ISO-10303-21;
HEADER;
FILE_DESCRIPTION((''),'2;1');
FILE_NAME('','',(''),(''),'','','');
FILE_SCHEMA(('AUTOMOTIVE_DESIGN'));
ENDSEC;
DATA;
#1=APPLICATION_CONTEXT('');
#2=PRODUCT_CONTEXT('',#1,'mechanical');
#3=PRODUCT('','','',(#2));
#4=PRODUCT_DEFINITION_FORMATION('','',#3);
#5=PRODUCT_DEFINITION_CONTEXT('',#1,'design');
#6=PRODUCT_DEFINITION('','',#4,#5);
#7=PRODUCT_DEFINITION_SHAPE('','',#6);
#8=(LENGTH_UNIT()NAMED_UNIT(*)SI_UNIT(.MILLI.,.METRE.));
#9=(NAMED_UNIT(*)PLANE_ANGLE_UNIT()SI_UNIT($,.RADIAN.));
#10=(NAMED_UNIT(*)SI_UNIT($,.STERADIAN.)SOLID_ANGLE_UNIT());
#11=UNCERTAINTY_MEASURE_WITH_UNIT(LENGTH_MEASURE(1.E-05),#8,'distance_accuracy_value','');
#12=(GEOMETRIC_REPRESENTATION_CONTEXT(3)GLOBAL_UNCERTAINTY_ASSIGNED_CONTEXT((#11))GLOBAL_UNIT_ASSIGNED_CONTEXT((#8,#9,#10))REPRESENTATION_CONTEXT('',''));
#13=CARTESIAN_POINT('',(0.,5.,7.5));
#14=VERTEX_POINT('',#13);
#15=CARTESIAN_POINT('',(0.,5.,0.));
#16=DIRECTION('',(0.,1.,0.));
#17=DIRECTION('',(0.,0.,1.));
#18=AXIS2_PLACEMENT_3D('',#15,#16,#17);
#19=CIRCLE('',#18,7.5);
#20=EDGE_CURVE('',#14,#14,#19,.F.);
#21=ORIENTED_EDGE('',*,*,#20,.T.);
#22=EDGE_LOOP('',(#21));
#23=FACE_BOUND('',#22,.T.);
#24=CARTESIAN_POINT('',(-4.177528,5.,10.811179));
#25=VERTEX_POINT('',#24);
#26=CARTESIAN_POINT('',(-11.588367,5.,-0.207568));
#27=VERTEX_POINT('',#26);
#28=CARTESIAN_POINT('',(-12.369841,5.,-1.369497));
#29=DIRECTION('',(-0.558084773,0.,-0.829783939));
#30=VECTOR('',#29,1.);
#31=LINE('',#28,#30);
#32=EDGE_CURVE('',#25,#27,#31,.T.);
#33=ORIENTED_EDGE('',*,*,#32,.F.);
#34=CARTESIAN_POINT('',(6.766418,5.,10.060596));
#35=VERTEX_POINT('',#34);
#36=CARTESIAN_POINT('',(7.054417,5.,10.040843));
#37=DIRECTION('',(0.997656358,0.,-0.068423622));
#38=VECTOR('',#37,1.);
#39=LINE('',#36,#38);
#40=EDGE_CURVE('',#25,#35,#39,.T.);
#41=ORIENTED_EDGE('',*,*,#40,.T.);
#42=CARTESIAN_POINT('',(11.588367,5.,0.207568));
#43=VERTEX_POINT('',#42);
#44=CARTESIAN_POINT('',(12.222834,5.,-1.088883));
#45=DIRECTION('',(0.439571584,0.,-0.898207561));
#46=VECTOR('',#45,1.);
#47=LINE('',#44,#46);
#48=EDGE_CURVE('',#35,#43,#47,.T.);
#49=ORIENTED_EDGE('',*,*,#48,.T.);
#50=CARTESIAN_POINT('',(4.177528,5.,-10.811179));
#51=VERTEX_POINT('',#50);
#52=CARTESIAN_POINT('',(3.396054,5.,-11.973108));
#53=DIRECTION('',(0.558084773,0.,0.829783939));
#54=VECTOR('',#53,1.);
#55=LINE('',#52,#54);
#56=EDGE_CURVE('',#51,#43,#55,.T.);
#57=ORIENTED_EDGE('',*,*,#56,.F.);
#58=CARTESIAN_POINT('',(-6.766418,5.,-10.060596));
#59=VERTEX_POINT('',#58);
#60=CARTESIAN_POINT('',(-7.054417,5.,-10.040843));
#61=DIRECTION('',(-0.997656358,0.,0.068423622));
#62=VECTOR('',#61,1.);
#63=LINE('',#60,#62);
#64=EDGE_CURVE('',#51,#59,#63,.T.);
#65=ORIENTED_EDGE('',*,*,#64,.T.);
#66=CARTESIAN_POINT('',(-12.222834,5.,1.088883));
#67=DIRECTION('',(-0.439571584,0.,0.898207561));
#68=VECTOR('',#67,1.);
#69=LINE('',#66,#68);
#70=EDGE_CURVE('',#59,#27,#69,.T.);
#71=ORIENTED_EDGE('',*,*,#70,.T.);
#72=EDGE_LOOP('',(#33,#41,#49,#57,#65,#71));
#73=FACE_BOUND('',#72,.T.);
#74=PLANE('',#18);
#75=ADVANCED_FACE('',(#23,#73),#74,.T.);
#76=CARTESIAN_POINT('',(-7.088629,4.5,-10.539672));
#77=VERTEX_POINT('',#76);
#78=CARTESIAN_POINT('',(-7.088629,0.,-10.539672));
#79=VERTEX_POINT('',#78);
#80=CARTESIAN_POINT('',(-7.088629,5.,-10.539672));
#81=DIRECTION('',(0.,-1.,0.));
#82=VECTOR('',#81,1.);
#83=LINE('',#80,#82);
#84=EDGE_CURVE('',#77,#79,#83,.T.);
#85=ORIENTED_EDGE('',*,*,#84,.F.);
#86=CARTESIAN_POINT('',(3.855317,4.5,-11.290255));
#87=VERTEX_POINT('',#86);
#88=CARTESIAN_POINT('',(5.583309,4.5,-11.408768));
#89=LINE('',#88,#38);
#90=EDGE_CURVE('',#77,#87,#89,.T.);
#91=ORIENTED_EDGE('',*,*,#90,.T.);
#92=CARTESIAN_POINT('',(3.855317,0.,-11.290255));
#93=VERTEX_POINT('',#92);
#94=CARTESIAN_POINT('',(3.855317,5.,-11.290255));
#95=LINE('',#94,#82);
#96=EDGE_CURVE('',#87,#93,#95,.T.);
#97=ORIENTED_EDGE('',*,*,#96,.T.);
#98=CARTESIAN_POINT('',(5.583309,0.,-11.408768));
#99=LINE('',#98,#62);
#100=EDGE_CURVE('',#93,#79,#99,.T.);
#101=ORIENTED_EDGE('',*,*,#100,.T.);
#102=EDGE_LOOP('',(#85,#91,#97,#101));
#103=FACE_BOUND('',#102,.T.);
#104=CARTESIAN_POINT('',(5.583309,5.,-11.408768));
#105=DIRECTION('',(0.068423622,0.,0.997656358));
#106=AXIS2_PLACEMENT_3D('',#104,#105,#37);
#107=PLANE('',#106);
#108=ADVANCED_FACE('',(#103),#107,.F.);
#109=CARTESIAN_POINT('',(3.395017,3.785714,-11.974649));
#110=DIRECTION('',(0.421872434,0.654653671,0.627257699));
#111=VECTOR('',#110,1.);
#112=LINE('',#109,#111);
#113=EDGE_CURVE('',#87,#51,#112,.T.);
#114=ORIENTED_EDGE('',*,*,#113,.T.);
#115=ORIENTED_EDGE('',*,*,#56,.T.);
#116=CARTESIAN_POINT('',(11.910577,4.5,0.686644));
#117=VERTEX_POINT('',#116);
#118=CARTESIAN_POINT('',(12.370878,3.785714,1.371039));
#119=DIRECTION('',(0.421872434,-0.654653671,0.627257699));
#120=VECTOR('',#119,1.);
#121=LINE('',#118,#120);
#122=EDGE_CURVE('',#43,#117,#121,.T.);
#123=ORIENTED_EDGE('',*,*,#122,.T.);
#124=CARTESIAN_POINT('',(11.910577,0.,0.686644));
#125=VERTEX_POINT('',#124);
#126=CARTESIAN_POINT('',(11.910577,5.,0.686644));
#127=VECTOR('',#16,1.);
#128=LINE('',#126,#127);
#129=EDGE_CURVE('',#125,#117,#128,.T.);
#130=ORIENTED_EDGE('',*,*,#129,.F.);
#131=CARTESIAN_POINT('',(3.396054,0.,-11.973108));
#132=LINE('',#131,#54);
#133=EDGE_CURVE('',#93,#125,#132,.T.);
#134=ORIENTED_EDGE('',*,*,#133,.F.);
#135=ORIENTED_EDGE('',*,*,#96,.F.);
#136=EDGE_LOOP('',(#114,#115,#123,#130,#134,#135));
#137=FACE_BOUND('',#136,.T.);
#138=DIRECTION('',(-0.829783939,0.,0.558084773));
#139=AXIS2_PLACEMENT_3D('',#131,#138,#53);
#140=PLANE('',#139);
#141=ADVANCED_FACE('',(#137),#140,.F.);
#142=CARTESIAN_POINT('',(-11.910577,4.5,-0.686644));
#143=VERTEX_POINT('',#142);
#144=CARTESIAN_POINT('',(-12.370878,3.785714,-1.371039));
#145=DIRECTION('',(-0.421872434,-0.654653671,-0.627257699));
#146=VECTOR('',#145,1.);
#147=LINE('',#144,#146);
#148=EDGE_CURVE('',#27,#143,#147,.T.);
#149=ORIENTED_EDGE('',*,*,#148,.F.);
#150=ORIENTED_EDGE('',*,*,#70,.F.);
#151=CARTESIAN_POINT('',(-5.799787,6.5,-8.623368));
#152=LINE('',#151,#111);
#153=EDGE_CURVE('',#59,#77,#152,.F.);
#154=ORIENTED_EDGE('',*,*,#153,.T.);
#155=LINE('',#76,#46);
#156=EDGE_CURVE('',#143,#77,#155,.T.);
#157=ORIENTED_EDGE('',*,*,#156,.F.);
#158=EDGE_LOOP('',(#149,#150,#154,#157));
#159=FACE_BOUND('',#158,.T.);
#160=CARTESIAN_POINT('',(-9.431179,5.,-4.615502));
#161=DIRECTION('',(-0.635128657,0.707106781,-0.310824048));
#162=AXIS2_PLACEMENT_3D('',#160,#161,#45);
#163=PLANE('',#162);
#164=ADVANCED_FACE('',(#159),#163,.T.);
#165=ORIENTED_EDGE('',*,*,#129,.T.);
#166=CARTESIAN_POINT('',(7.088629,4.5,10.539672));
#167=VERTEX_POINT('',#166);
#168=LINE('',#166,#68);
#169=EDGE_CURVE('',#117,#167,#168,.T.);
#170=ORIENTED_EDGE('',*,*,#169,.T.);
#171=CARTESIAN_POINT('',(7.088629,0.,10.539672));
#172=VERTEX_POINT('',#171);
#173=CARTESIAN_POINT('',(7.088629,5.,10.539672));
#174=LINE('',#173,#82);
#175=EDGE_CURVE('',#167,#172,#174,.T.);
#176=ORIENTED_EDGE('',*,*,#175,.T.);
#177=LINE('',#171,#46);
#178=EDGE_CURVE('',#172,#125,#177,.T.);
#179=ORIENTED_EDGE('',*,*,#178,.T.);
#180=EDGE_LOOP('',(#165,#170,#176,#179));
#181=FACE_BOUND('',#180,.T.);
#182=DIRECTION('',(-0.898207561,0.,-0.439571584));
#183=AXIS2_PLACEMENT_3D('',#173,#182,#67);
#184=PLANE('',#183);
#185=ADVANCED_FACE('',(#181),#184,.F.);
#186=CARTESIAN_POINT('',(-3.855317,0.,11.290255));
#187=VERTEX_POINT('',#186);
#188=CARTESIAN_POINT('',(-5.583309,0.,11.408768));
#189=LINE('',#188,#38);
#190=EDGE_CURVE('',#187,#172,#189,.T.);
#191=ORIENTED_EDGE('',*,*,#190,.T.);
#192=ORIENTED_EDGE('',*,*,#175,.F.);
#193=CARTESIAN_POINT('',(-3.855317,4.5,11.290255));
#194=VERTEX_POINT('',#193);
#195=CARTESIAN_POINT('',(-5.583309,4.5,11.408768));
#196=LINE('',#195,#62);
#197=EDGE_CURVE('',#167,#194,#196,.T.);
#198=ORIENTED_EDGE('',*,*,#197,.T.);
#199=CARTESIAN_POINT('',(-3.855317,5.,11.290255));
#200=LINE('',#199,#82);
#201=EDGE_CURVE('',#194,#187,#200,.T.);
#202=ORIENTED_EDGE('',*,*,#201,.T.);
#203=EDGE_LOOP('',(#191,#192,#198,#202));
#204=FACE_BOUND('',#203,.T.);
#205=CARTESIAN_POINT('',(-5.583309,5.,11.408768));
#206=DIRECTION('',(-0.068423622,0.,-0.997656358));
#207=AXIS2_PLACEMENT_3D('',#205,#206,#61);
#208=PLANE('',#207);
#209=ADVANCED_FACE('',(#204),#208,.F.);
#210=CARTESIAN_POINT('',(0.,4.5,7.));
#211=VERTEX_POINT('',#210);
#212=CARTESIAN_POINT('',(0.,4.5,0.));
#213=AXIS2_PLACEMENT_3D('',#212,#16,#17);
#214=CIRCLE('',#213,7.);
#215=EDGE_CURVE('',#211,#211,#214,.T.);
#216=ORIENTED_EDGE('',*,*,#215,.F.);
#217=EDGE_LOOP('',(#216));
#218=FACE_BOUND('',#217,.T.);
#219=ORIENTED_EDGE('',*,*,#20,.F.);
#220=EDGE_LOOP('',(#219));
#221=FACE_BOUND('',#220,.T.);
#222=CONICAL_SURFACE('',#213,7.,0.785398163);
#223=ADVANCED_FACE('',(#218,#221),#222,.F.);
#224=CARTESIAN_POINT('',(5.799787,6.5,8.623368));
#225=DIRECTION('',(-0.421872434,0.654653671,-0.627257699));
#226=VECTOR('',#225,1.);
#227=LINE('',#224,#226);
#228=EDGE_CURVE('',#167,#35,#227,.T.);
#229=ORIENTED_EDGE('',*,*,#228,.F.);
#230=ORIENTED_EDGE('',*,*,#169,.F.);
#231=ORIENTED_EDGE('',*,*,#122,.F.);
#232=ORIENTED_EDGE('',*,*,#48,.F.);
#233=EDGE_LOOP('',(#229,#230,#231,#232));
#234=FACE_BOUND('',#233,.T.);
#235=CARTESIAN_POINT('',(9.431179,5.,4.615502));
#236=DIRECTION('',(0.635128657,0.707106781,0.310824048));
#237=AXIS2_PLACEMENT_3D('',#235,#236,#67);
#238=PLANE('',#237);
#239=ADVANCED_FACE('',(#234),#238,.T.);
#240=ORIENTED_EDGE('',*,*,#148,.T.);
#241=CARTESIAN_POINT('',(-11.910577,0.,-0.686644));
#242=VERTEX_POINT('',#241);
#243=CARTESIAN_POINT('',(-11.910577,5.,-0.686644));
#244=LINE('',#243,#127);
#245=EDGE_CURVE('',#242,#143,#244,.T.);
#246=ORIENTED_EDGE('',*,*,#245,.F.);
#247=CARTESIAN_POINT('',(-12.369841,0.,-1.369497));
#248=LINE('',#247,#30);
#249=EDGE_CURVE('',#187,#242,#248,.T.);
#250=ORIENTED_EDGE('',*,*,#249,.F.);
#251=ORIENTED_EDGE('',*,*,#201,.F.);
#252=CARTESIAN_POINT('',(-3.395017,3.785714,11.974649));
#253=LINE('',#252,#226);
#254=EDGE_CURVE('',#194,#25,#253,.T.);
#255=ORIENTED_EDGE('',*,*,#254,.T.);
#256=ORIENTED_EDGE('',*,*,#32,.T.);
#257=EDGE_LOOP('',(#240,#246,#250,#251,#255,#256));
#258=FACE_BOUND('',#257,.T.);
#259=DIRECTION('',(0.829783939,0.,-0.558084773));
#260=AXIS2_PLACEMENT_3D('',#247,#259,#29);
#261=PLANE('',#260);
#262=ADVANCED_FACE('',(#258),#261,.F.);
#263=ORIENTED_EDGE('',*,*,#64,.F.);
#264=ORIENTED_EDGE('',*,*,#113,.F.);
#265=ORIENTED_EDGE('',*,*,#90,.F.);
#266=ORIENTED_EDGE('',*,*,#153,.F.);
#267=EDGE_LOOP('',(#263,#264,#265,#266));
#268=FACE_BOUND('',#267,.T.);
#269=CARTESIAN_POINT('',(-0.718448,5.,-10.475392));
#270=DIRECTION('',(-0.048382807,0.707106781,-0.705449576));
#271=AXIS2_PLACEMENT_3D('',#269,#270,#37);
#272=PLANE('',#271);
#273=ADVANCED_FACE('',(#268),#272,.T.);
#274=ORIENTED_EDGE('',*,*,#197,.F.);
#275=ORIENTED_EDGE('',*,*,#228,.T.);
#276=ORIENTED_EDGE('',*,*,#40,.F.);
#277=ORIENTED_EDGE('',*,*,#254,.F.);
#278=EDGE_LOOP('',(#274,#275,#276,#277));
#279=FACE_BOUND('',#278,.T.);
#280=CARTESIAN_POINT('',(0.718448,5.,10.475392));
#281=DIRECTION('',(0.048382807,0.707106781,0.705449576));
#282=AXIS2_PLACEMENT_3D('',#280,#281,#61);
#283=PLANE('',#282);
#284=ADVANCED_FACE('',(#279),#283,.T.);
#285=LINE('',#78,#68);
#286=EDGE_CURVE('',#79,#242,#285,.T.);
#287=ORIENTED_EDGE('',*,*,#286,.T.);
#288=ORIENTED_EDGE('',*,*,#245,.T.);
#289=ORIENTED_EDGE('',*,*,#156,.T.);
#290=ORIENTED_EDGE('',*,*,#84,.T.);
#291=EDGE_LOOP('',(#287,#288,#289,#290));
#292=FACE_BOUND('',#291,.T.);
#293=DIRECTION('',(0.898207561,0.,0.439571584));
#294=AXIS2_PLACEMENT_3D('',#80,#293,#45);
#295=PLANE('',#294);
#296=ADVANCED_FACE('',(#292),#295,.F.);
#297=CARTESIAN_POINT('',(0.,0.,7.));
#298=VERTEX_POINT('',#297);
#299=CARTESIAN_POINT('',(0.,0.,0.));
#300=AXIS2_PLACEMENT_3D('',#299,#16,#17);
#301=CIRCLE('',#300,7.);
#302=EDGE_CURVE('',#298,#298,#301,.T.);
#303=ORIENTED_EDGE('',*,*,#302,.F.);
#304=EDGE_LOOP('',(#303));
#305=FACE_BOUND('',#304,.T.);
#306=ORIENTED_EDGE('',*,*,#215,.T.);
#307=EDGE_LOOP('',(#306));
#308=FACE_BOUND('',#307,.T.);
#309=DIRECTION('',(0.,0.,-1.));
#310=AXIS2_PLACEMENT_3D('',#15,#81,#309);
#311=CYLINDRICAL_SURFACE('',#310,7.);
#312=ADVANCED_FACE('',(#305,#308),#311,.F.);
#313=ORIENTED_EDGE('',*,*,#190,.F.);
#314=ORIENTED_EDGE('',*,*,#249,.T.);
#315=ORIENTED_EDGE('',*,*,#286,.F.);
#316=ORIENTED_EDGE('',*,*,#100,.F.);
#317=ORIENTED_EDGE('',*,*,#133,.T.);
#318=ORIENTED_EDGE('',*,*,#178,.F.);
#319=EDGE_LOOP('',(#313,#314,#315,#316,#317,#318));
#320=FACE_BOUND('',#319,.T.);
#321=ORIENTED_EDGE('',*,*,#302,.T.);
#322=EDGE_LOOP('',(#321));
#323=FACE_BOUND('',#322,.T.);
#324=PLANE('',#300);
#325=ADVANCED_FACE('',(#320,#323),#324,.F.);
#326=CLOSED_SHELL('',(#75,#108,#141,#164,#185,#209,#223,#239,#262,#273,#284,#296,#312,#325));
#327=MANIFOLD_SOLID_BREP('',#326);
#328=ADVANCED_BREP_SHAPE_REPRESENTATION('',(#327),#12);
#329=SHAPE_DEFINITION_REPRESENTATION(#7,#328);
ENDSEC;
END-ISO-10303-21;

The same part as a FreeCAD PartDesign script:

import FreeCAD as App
import Part
import Sketcher
from FreeCAD import Vector
Q = App.Units.Quantity


def edges_at(feature, points):
    """Names of the edges that pass closest to the given points."""
    edges = feature.Shape.Edges
    near = lambda p: min(range(len(edges)), key=lambda i: edges[i].distToShape(Part.Vertex(*p))[0])
    return sorted({f"Edge{near(p) + 1}" for p in points})


def add_polygon(sketch, points):
    """Adds a closed chain of lines whose ends are joined by coincident constraints."""
    first, n = sketch.GeometryCount, len(points)
    for a, b in zip(points, points[1:] + points[:1]):
        sketch.addGeometry(Part.LineSegment(App.Vector(*a, 0), App.Vector(*b, 0)), False)
    for i in range(n):
        sketch.addConstraint(Sketcher.Constraint("Coincident", first + i, 2, first + (i + 1) % n, 1))

doc = App.newDocument("Part")
body = doc.addObject("PartDesign::Body", "Body")

# Sketch on XZ plane
sketch1 = body.newObject("Sketcher::SketchObject", "Sketch")
sketch1.AttachmentSupport = (doc.getObject("XZ_Plane"), [""])
sketch1.MapMode = "FlatFace"
add_polygon(sketch1, [(7, 11), (13, -1), (6, -11), (-7, -11), (-13, 1), (-6, 11)])  # lines 0-5
sketch1.addGeometry(Part.Circle(Vector(0, 0, 0), Vector(0, 0, 1), 7), False)  # 6
sketch1.addConstraint(Sketcher.Constraint("Coincident", 6, 3, -1, 1))
sketch1.addConstraint(Sketcher.Constraint("Symmetric", 0, 2, 3, 2, -1, 1))
sketch1.addConstraint(Sketcher.Constraint("Symmetric", 1, 2, 4, 2, -1, 1))
sketch1.addConstraint(Sketcher.Constraint("Symmetric", 2, 2, 5, 2, -1, 1))
sketch1.addConstraint(Sketcher.Constraint("Equal", 0, 1))
sketch1.addConstraint(Sketcher.Constraint("Equal", 1, 2))
sketch1.addConstraint(Sketcher.Constraint("Diameter", 6, Q("14 mm")))
sketch1.addConstraint(Sketcher.Constraint("DistanceX", -1, 1, 1, 2, Q("5.583309 mm")))
sketch1.addConstraint(Sketcher.Constraint("DistanceY", 1, 2, -1, 1, Q("11.408768 mm")))
sketch1.addConstraint(Sketcher.Constraint("DistanceX", 2, 2, -1, 1, Q("7.088629 mm")))
sketch1.addConstraint(Sketcher.Constraint("DistanceY", 2, 2, -1, 1, Q("10.539672 mm")))
pad1 = body.newObject("PartDesign::Pad", "Pad")
pad1.Profile = sketch1
pad1.Length = 5
pad1.Reversed = True
doc.recompute()

chamfer = body.newObject("PartDesign::Chamfer", "Chamfer")
chamfer.Base = (pad1, edges_at(pad1, [
    (9.128, 5, -6.139),
    (-0.753, 5, -10.974),
    (-9.88, 5, -4.835),
    (0, 5, -7),
    (-9.128, 5, 6.139),
    (0.753, 5, 10.974),
    (9.88, 5, 4.835),
]))
chamfer.Size = 0.5

# Sketch on XZ plane
sketch2 = body.newObject("Sketcher::SketchObject", "Sketch001")
sketch2.AttachmentSupport = (doc.getObject("XZ_Plane"), [""])
sketch2.MapMode = "FlatFace"
sketch2.AttachmentOffset = App.Placement(Vector(0, 0, -5), App.Rotation())
add_polygon(sketch2, [(-3.3, 12.1), (-12.4, -1.4), (-15.3, 0.6), (-6.2, 14.1)])  # lines 0-3
add_polygon(sketch2, [(6.3, -13.9), (3.4, -12), (12.5, 1.5), (15.4, -0.5)])  # lines 4-7
sketch2.addConstraint(Sketcher.Constraint("Perpendicular", 0, 1))
sketch2.addConstraint(Sketcher.Constraint("Perpendicular", 1, 2))
sketch2.addConstraint(Sketcher.Constraint("Perpendicular", 2, 3))
sketch2.addConstraint(Sketcher.Constraint("Parallel", 3, 4))
sketch2.addConstraint(Sketcher.Constraint("Perpendicular", 4, 5))
sketch2.addConstraint(Sketcher.Constraint("Perpendicular", 5, 6))
sketch2.addConstraint(Sketcher.Constraint("Perpendicular", 6, 7))
sketch2.addConstraint(Sketcher.Constraint("Equal", 3, 4))
sketch2.addConstraint(Sketcher.Constraint("Equal", 2, 5))
sketch2.addConstraint(Sketcher.Constraint("DistanceY", 0, 2, 2, 2, Q("15.421402 mm")))
sketch2.addConstraint(Sketcher.Constraint("DistanceX", 3, 2, 4, 2, Q("6.7095 mm")))
sketch2.addConstraint(Sketcher.Constraint("DistanceX", 0, 2, -1, 1, Q("12.369841 mm")))
sketch2.addConstraint(Sketcher.Constraint("DistanceX", 2, 2, -1, 1, Q("6.221668 mm")))
sketch2.addConstraint(Sketcher.Constraint("DistanceX", -1, 1, 5, 2, Q("12.452449 mm")))
sketch2.addConstraint(Sketcher.Constraint("DistanceY", -1, 1, 5, 2, Q("1.492322 mm")))
sketch2.addConstraint(Sketcher.Constraint("DistanceY", 4, 2, 0, 2, Q("10.603611 mm")))
pocket1 = body.newObject("PartDesign::Pocket", "Pocket")
pocket1.Profile = sketch2
pocket1.Type = "ThroughAll"
pocket1.Reversed = True

doc.recompute()
